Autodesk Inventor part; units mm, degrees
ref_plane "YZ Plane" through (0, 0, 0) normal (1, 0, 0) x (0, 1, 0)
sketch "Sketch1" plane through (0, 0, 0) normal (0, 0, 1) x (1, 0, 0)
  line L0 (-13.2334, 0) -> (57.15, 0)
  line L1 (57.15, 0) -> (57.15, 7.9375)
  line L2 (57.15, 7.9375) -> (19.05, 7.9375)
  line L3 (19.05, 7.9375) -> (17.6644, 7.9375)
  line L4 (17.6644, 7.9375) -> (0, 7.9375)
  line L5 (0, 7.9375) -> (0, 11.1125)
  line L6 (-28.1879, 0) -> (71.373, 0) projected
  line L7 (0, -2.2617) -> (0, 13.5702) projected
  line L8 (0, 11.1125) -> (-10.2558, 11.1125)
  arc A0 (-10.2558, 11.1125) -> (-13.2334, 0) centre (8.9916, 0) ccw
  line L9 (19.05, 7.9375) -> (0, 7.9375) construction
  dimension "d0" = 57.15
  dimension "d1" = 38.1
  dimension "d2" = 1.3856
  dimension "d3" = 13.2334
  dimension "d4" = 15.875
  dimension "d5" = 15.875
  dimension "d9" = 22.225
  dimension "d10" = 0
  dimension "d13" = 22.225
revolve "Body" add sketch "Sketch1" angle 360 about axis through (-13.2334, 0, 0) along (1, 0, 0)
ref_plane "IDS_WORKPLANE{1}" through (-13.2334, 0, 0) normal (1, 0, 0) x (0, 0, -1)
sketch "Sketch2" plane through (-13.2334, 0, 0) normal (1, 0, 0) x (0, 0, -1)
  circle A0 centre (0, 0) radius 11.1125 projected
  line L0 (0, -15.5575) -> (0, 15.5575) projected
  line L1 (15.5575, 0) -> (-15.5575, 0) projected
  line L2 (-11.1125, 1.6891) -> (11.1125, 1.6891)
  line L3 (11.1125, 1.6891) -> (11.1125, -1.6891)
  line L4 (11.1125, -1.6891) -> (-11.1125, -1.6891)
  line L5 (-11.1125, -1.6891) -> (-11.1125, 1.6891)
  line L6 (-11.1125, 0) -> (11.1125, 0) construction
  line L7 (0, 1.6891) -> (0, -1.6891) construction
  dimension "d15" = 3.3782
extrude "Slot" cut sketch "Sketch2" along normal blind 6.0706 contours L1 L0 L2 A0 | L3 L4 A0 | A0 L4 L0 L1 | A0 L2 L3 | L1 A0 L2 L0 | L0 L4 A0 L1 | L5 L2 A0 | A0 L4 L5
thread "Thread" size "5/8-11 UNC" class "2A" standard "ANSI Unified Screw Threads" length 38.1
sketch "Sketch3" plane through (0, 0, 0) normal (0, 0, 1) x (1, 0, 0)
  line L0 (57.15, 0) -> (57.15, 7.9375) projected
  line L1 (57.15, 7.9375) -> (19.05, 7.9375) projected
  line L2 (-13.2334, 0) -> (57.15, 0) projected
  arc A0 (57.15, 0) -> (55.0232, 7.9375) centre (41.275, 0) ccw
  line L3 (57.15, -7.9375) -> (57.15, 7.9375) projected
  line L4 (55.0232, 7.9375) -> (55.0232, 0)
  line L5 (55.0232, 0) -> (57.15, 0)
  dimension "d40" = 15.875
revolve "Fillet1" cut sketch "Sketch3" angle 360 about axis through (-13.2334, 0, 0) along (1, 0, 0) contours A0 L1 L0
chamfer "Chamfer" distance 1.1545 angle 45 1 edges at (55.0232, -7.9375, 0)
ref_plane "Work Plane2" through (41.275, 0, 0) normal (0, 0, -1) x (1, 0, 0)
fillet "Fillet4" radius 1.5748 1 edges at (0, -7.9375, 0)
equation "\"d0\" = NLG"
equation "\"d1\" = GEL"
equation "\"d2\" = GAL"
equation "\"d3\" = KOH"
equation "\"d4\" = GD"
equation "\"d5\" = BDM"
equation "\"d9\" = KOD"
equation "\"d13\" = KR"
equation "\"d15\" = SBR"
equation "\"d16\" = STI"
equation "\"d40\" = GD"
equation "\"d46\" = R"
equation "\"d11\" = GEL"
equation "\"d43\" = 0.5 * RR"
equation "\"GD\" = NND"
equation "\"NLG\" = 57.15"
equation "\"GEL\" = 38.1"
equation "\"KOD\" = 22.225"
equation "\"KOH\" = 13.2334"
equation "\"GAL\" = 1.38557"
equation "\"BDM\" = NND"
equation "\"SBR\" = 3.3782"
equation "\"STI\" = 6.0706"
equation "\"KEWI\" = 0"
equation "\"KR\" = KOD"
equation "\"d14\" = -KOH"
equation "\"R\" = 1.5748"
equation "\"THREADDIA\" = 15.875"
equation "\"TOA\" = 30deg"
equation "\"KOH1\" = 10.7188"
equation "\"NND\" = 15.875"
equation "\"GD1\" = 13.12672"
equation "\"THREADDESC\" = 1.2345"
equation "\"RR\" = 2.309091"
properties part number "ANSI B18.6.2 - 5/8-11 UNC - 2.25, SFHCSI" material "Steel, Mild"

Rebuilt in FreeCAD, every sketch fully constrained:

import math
import FreeCAD as App
import Part
import Sketcher
from FreeCAD import Vector
Q = App.Units.Quantity


def edges_at(feature, points):
    """Names of the edges that pass closest to the given points."""
    edges = feature.Shape.Edges
    near = lambda p: min(range(len(edges)), key=lambda i: edges[i].distToShape(Part.Vertex(*p))[0])
    return sorted({f"Edge{near(p) + 1}" for p in points})

doc = App.newDocument("Part")
body = doc.addObject("PartDesign::Body", "Body")

sketch1 = doc.addObject("Sketcher::SketchObject", "Sketch")
body.addObject(sketch1)
sketch1.AttachmentSupport = (doc.XY_Plane, [""])
sketch1.MapMode = "FlatFace"
sketch1.addGeometry([
    Part.ArcOfCircle(Part.Circle(Vector(9, 0, 0), Vector(0, 0, 1), 22.2), math.radians(150), math.radians(180)),
    Part.LineSegment(Vector(-13.2, 0, 0), Vector(57.1, 0, 0)),
    Part.LineSegment(Vector(57.1, 0, 0), Vector(57.1, 7.9, 0)),
    Part.LineSegment(Vector(57.1, 7.9, 0), Vector(0, 7.9, 0)),
    Part.LineSegment(Vector(0, 7.9, 0), Vector(0, 11.1, 0)),
    Part.LineSegment(Vector(0, 11.1, 0), Vector(-10.3, 11.1, 0)),
], False)
sketch1.addConstraint([
    Sketcher.Constraint("Coincident", 0, 2, 1, 1),
    Sketcher.Constraint("Coincident", 1, 2, 2, 1),
    Sketcher.Constraint("Coincident", 2, 2, 3, 1),
    Sketcher.Constraint("Coincident", 3, 2, 4, 1),
    Sketcher.Constraint("Coincident", 4, 2, 5, 1),
    Sketcher.Constraint("Coincident", 5, 2, 0, 1),
    Sketcher.Constraint("Horizontal", 1),
    Sketcher.Constraint("Vertical", 2),
    Sketcher.Constraint("Horizontal", 3),
    Sketcher.Constraint("Vertical", 4),
    Sketcher.Constraint("Horizontal", 5),
    Sketcher.Constraint("PointOnObject", 0, 3, -1),
    Sketcher.Constraint("PointOnObject", 0, 2, -1),
    Sketcher.Constraint("PointOnObject", 3, 2, -2),
    Sketcher.Constraint("Radius", 0, Q("0.875 in")),
    Sketcher.Constraint("DistanceX", 3, 2, 3, 1, Q("2.25 in")),
    Sketcher.Constraint("DistanceX", 0, 2, -1, 1, Q("0.521 in")),
    Sketcher.Constraint("DistanceY", 2, 1, 2, 2, Q("0.3125 in")),
    Sketcher.Constraint("DistanceY", 4, 1, 4, 2, Q("0.125 in")),
])
revolution = doc.addObject("PartDesign::Revolution", "Revolution")
body.addObject(revolution)
revolution.Profile = sketch1
revolution.ReferenceAxis = (sketch1, ["H_Axis"])
revolution.Angle = 360

sketch2 = doc.addObject("Sketcher::SketchObject", "Sketch001")
body.addObject(sketch2)
sketch2.AttachmentSupport = (doc.YZ_Plane, [""])
sketch2.MapMode = "FlatFace"
sketch2.AttachmentOffset = App.Placement(Vector(0, 0, -0.521 * 25.4), App.Rotation())
sketch2.addGeometry([
    Part.LineSegment(Vector(1.7, 11.1, 0), Vector(-1.7, 11.1, 0)),
    Part.LineSegment(Vector(-1.7, 11.1, 0), Vector(-1.7, -11.1, 0)),
    Part.LineSegment(Vector(-1.7, -11.1, 0), Vector(1.7, -11.1, 0)),
    Part.LineSegment(Vector(1.7, -11.1, 0), Vector(1.7, 11.1, 0)),
], False)
sketch2.addConstraint([
    Sketcher.Constraint("Coincident", 0, 2, 1, 1),
    Sketcher.Constraint("Coincident", 1, 2, 2, 1),
    Sketcher.Constraint("Coincident", 2, 2, 3, 1),
    Sketcher.Constraint("Coincident", 3, 2, 0, 1),
    Sketcher.Constraint("Horizontal", 0),
    Sketcher.Constraint("Vertical", 1),
    Sketcher.Constraint("Horizontal", 2),
    Sketcher.Constraint("Vertical", 3),
    Sketcher.Constraint("Symmetric", 0, 2, 2, 2, -1, 1),
    Sketcher.Constraint("DistanceX", 0, 2, 0, 1, Q("0.133 in")),
    Sketcher.Constraint("DistanceY", 1, 2, 1, 1, Q("0.875 in")),
])
pocket1 = doc.addObject("PartDesign::Pocket", "Pocket")
body.addObject(pocket1)
pocket1.Profile = sketch2
pocket1.Length = Q("0.239 in")
pocket1.Reversed = True

sketch3 = doc.addObject("Sketcher::SketchObject", "Sketch002")
body.addObject(sketch3)
sketch3.AttachmentSupport = (doc.XY_Plane, [""])
sketch3.MapMode = "FlatFace"
sketch3.addGeometry([
    Part.ArcOfCircle(Part.Circle(Vector(41.3, 0, 0), Vector(0, 0, 1), 15.9), math.radians(0), math.radians(30)),
    Part.LineSegment(Vector(57.1, 0, 0), Vector(57.1, 7.9, 0)),
    Part.LineSegment(Vector(57.1, 7.9, 0), Vector(55, 7.9, 0)),
], False)
sketch3.addConstraint([
    Sketcher.Constraint("Tangent", 0, 1, 1, 1),
    Sketcher.Constraint("Coincident", 1, 2, 2, 1),
    Sketcher.Constraint("Coincident", 2, 2, 0, 2),
    Sketcher.Constraint("Vertical", 1),
    Sketcher.Constraint("Horizontal", 2),
    Sketcher.Constraint("PointOnObject", 0, 3, -1),
    Sketcher.Constraint("Radius", 0, Q("0.625 in")),
    Sketcher.Constraint("DistanceY", 1, 1, 1, 2, Q("0.3125 in")),
    Sketcher.Constraint("DistanceX", -1, 1, 0, 1, Q("2.25 in")),
])
groove = doc.addObject("PartDesign::Groove", "Groove")
body.addObject(groove)
groove.Profile = sketch3
groove.ReferenceAxis = (sketch3, ["H_Axis"])
groove.Angle = 360
doc.recompute()

chamfer = doc.addObject("PartDesign::Chamfer", "Chamfer")
body.addObject(chamfer)
chamfer.Base = (groove, edges_at(groove, [(55.023, -7.938, 0)]))
chamfer.Size = 1.1545
doc.recompute()

fillet = doc.addObject("PartDesign::Fillet", "Fillet")
body.addObject(fillet)
fillet.Base = (chamfer, edges_at(chamfer, [(0, -7.938, 0)]))
fillet.Radius = Q("0.062 in")

doc.recompute()
